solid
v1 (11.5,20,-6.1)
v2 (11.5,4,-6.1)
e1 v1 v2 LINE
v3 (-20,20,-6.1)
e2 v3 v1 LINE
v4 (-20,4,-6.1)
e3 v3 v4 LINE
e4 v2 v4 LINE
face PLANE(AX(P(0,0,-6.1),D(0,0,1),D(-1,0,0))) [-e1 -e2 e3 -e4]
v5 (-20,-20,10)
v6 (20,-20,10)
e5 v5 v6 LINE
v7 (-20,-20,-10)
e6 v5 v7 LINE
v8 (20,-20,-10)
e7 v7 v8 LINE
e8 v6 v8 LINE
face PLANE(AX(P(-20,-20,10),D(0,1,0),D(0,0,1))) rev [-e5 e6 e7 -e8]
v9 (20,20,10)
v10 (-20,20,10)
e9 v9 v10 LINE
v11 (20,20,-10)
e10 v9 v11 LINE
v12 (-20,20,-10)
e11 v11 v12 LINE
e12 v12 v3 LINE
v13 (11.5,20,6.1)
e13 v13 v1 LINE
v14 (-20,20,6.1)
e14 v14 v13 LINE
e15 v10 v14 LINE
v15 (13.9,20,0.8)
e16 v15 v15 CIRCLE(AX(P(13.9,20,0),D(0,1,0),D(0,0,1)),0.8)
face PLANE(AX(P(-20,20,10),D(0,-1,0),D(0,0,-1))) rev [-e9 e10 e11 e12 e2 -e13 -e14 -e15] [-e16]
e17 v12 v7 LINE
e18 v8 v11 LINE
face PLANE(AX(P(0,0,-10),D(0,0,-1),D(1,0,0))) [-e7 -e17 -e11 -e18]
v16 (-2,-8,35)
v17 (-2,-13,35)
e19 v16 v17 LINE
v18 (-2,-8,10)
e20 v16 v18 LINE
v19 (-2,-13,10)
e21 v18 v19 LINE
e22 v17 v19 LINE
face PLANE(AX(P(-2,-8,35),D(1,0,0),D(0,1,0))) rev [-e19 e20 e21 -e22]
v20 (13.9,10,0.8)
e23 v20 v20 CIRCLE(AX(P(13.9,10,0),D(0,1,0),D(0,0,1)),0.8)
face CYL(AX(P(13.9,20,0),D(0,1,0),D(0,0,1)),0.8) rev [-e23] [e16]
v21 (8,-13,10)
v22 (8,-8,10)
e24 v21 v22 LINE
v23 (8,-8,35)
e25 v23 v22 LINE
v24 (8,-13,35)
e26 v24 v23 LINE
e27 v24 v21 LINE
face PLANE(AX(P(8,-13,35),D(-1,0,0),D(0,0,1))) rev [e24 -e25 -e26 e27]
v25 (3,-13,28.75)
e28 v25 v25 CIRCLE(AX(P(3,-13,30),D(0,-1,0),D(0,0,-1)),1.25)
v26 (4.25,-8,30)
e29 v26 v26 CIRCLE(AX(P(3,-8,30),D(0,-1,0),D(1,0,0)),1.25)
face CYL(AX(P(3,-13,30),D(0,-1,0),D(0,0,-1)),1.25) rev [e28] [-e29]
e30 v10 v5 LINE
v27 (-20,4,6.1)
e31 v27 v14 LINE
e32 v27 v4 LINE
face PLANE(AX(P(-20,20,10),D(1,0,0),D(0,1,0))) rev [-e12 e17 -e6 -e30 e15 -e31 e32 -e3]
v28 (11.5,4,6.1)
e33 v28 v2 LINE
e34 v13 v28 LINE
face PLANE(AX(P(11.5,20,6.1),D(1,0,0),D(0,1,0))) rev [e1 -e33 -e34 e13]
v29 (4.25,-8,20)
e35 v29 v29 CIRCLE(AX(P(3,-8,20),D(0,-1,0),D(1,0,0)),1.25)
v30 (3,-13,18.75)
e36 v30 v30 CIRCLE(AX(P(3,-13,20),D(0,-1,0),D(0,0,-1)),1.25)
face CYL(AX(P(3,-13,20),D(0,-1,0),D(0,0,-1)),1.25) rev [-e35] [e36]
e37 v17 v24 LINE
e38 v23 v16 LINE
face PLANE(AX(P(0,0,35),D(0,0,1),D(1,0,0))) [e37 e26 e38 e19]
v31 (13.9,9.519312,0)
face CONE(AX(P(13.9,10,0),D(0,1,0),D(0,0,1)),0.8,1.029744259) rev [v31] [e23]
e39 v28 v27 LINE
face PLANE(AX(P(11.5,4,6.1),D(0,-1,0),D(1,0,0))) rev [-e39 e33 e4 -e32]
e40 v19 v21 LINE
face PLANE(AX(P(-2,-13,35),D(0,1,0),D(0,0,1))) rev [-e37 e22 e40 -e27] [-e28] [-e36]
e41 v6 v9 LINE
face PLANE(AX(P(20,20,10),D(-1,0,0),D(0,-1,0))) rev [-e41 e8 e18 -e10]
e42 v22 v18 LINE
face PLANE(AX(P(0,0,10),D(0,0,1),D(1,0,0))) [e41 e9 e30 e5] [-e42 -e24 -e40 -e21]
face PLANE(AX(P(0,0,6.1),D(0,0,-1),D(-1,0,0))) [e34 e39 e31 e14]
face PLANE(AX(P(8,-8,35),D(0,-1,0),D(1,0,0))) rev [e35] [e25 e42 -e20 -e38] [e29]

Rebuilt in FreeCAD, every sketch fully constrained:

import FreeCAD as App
import Part
import Sketcher
Q = App.Units.Quantity

doc = App.newDocument("Part")
body = doc.addObject("PartDesign::Body", "Body")

# Sketch on XY plane
sketch1 = body.newObject("Sketcher::SketchObject", "Sketch")
sketch1.AttachmentSupport = (doc.getObject("XY_Plane"), [""])
sketch1.MapMode = "FlatFace"
sketch1.addGeometry(Part.LineSegment(App.Vector(-20, 20, 0), App.Vector(-20, -20, 0)), False)
sketch1.addGeometry(Part.LineSegment(App.Vector(-20, -20, 0), App.Vector(20, -20, 0)), False)
sketch1.addGeometry(Part.LineSegment(App.Vector(20, -20, 0), App.Vector(20, 20, 0)), False)
sketch1.addGeometry(Part.LineSegment(App.Vector(20, 20, 0), App.Vector(-20, 20, 0)), False)
sketch1.addConstraint(Sketcher.Constraint("Coincident", 0, 2, 1, 1))
sketch1.addConstraint(Sketcher.Constraint("Coincident", 1, 2, 2, 1))
sketch1.addConstraint(Sketcher.Constraint("Coincident", 2, 2, 3, 1))
sketch1.addConstraint(Sketcher.Constraint("Coincident", 3, 2, 0, 1))
sketch1.addConstraint(Sketcher.Constraint("Vertical", 0))
sketch1.addConstraint(Sketcher.Constraint("Horizontal", 1))
sketch1.addConstraint(Sketcher.Constraint("Vertical", 2))
sketch1.addConstraint(Sketcher.Constraint("Horizontal", 3))
sketch1.addConstraint(Sketcher.Constraint("Symmetric", 0, 2, 2, 2, -1, 1))
sketch1.addConstraint(Sketcher.Constraint("Equal", 3, 0))
sketch1.addConstraint(Sketcher.Constraint("DistanceX", 1, 1, 1, 2, Q("40 mm")))
pad1 = body.newObject("PartDesign::Pad", "Pad")
pad1.Profile = sketch1
pad1.Length = 10

# Sketch on XY plane
sketch2 = body.newObject("Sketcher::SketchObject", "Sketch001")
sketch2.AttachmentSupport = (doc.getObject("XY_Plane"), [""])
sketch2.MapMode = "FlatFace"
sketch2.addGeometry(Part.LineSegment(App.Vector(-38, 20, 0), App.Vector(-38, 4, 0)), False)
sketch2.addGeometry(Part.LineSegment(App.Vector(-38, 4, 0), App.Vector(12, 4, 0)), False)
sketch2.addGeometry(Part.LineSegment(App.Vector(12, 4, 0), App.Vector(12, 20, 0)), False)
sketch2.addGeometry(Part.LineSegment(App.Vector(12, 20, 0), App.Vector(-38, 20, 0)), False)
sketch2.addConstraint(Sketcher.Constraint("Coincident", 0, 2, 1, 1))
sketch2.addConstraint(Sketcher.Constraint("Coincident", 1, 2, 2, 1))
sketch2.addConstraint(Sketcher.Constraint("Coincident", 2, 2, 3, 1))
sketch2.addConstraint(Sketcher.Constraint("Coincident", 3, 2, 0, 1))
sketch2.addConstraint(Sketcher.Constraint("Vertical", 0))
sketch2.addConstraint(Sketcher.Constraint("Horizontal", 1))
sketch2.addConstraint(Sketcher.Constraint("Vertical", 2))
sketch2.addConstraint(Sketcher.Constraint("Horizontal", 3))
sketch2.addConstraint(Sketcher.Constraint("DistanceX", 1, 1, 1, 2, Q("50 mm")))
sketch2.addConstraint(Sketcher.Constraint("DistanceY", 0, 2, 0, 1, Q("16 mm")))
sketch2.addConstraint(Sketcher.Constraint("DistanceY", -1, 1, 0, 2, Q("4 mm")))
sketch2.addConstraint(Sketcher.Constraint("DistanceX", 0, 2, -1, 1, Q("38.5 mm")))
pocket1 = body.newObject("PartDesign::Pocket", "Pocket")
pocket1.Profile = sketch2
pocket1.Length = 6.1
pocket1.Reversed = True
doc.recompute()

mirrored = body.newObject("PartDesign::Mirrored", "Mirrored")
mirrored.Originals = [pad1, pocket1]
mirrored.MirrorPlane = (doc.getObject("XY_Plane"), [""])
body.Tip = mirrored

# Sketch on XZ plane
sketch3 = body.newObject("Sketcher::SketchObject", "Sketch002")
sketch3.AttachmentSupport = (doc.getObject("XZ_Plane"), [""])
sketch3.MapMode = "FlatFace"
sketch3.AttachmentOffset = App.Placement(App.Vector(0, 0, -20), App.Rotation())
sketch3.addGeometry(Part.Circle(App.Vector(13.9, 0, 0), App.Vector(0, 0, 1), 0.8), False)
sketch3.addGeometry(Part.Circle(App.Vector(-13.9, 0, 0), App.Vector(0, 0, 1), 0.8), False)
sketch3.addConstraint(Sketcher.Constraint("Equal", 0, 1))
sketch3.addConstraint(Sketcher.Constraint("Symmetric", 0, 3, 1, 3, -1, 1))
sketch3.addConstraint(Sketcher.Constraint("PointOnObject", 0, 3, -1))
sketch3.addConstraint(Sketcher.Constraint("Diameter", 0, Q("1.6 mm")))
sketch3.addConstraint(Sketcher.Constraint("DistanceX", -1, 1, 0, 3, Q("13.9 mm")))
doc.recompute()
hole = body.newObject("PartDesign::Hole", "Hole")
hole.Profile = sketch3
hole.ThreadType = "None"
hole.Diameter = 1.6
hole.DepthType = "Dimension"
hole.Depth = 10
hole.DrillPoint = "Angled"
hole.DrillPointAngle = 118
hole.Reversed = True

# Sketch on XY plane
sketch4 = body.newObject("Sketcher::SketchObject", "Sketch003")
sketch4.AttachmentSupport = (doc.getObject("XY_Plane"), [""])
sketch4.MapMode = "FlatFace"
sketch4.AttachmentOffset = App.Placement(App.Vector(0, 0, 10), App.Rotation())
sketch4.addGeometry(Part.LineSegment(App.Vector(-2, -8, 0), App.Vector(-2, -13, 0)), False)
sketch4.addGeometry(Part.LineSegment(App.Vector(-2, -13, 0), App.Vector(8, -13, 0)), False)
sketch4.addGeometry(Part.LineSegment(App.Vector(8, -13, 0), App.Vector(8, -8, 0)), False)
sketch4.addGeometry(Part.LineSegment(App.Vector(8, -8, 0), App.Vector(-2, -8, 0)), False)
sketch4.addConstraint(Sketcher.Constraint("Coincident", 0, 2, 1, 1))
sketch4.addConstraint(Sketcher.Constraint("Coincident", 1, 2, 2, 1))
sketch4.addConstraint(Sketcher.Constraint("Coincident", 2, 2, 3, 1))
sketch4.addConstraint(Sketcher.Constraint("Coincident", 3, 2, 0, 1))
sketch4.addConstraint(Sketcher.Constraint("Vertical", 0))
sketch4.addConstraint(Sketcher.Constraint("Horizontal", 1))
sketch4.addConstraint(Sketcher.Constraint("Vertical", 2))
sketch4.addConstraint(Sketcher.Constraint("Horizontal", 3))
sketch4.addConstraint(Sketcher.Constraint("DistanceX", 1, 1, 1, 2, Q("10 mm")))
sketch4.addConstraint(Sketcher.Constraint("DistanceY", 0, 2, 0, 1, Q("5 mm")))
sketch4.addConstraint(Sketcher.Constraint("DistanceX", 0, 2, -1, 1, Q("2 mm")))
sketch4.addConstraint(Sketcher.Constraint("DistanceY", 0, 2, -1, 1, Q("13 mm")))
pad2 = body.newObject("PartDesign::Pad", "Pad001")
pad2.Profile = sketch4
pad2.Length = 25

# Sketch on XZ plane
sketch5 = body.newObject("Sketcher::SketchObject", "Sketch004")
sketch5.AttachmentSupport = (doc.getObject("XZ_Plane"), [""])
sketch5.MapMode = "FlatFace"
sketch5.AttachmentOffset = App.Placement(App.Vector(0, 0, 13), App.Rotation())
sketch5.addGeometry(Part.Circle(App.Vector(3, 20, 0), App.Vector(0, 0, 1), 1.2), False)
sketch5.addGeometry(Part.Circle(App.Vector(3, 30, 0), App.Vector(0, 0, 1), 1.2), False)
sketch5.addConstraint(Sketcher.Constraint("Equal", 0, 1))
sketch5.addConstraint(Sketcher.Constraint("Vertical", 0, 3, 1, 3))
sketch5.addConstraint(Sketcher.Constraint("Diameter", 0, Q("2.5 mm")))
sketch5.addConstraint(Sketcher.Constraint("DistanceX", -1, 1, 0, 3, Q("3 mm")))
sketch5.addConstraint(Sketcher.Constraint("DistanceY", -1, 1, 0, 3, Q("20 mm")))
sketch5.addConstraint(Sketcher.Constraint("DistanceY", -1, 1, 1, 3, Q("30 mm")))
doc.recompute()
hole2 = body.newObject("PartDesign::Hole", "Hole001")
hole2.Profile = sketch5
hole2.ThreadType = "None"
hole2.Diameter = 2.5
hole2.DepthType = "Dimension"
hole2.Depth = 8.5
hole2.DrillPoint = "Angled"
hole2.DrillPointAngle = 118

doc.recompute()
